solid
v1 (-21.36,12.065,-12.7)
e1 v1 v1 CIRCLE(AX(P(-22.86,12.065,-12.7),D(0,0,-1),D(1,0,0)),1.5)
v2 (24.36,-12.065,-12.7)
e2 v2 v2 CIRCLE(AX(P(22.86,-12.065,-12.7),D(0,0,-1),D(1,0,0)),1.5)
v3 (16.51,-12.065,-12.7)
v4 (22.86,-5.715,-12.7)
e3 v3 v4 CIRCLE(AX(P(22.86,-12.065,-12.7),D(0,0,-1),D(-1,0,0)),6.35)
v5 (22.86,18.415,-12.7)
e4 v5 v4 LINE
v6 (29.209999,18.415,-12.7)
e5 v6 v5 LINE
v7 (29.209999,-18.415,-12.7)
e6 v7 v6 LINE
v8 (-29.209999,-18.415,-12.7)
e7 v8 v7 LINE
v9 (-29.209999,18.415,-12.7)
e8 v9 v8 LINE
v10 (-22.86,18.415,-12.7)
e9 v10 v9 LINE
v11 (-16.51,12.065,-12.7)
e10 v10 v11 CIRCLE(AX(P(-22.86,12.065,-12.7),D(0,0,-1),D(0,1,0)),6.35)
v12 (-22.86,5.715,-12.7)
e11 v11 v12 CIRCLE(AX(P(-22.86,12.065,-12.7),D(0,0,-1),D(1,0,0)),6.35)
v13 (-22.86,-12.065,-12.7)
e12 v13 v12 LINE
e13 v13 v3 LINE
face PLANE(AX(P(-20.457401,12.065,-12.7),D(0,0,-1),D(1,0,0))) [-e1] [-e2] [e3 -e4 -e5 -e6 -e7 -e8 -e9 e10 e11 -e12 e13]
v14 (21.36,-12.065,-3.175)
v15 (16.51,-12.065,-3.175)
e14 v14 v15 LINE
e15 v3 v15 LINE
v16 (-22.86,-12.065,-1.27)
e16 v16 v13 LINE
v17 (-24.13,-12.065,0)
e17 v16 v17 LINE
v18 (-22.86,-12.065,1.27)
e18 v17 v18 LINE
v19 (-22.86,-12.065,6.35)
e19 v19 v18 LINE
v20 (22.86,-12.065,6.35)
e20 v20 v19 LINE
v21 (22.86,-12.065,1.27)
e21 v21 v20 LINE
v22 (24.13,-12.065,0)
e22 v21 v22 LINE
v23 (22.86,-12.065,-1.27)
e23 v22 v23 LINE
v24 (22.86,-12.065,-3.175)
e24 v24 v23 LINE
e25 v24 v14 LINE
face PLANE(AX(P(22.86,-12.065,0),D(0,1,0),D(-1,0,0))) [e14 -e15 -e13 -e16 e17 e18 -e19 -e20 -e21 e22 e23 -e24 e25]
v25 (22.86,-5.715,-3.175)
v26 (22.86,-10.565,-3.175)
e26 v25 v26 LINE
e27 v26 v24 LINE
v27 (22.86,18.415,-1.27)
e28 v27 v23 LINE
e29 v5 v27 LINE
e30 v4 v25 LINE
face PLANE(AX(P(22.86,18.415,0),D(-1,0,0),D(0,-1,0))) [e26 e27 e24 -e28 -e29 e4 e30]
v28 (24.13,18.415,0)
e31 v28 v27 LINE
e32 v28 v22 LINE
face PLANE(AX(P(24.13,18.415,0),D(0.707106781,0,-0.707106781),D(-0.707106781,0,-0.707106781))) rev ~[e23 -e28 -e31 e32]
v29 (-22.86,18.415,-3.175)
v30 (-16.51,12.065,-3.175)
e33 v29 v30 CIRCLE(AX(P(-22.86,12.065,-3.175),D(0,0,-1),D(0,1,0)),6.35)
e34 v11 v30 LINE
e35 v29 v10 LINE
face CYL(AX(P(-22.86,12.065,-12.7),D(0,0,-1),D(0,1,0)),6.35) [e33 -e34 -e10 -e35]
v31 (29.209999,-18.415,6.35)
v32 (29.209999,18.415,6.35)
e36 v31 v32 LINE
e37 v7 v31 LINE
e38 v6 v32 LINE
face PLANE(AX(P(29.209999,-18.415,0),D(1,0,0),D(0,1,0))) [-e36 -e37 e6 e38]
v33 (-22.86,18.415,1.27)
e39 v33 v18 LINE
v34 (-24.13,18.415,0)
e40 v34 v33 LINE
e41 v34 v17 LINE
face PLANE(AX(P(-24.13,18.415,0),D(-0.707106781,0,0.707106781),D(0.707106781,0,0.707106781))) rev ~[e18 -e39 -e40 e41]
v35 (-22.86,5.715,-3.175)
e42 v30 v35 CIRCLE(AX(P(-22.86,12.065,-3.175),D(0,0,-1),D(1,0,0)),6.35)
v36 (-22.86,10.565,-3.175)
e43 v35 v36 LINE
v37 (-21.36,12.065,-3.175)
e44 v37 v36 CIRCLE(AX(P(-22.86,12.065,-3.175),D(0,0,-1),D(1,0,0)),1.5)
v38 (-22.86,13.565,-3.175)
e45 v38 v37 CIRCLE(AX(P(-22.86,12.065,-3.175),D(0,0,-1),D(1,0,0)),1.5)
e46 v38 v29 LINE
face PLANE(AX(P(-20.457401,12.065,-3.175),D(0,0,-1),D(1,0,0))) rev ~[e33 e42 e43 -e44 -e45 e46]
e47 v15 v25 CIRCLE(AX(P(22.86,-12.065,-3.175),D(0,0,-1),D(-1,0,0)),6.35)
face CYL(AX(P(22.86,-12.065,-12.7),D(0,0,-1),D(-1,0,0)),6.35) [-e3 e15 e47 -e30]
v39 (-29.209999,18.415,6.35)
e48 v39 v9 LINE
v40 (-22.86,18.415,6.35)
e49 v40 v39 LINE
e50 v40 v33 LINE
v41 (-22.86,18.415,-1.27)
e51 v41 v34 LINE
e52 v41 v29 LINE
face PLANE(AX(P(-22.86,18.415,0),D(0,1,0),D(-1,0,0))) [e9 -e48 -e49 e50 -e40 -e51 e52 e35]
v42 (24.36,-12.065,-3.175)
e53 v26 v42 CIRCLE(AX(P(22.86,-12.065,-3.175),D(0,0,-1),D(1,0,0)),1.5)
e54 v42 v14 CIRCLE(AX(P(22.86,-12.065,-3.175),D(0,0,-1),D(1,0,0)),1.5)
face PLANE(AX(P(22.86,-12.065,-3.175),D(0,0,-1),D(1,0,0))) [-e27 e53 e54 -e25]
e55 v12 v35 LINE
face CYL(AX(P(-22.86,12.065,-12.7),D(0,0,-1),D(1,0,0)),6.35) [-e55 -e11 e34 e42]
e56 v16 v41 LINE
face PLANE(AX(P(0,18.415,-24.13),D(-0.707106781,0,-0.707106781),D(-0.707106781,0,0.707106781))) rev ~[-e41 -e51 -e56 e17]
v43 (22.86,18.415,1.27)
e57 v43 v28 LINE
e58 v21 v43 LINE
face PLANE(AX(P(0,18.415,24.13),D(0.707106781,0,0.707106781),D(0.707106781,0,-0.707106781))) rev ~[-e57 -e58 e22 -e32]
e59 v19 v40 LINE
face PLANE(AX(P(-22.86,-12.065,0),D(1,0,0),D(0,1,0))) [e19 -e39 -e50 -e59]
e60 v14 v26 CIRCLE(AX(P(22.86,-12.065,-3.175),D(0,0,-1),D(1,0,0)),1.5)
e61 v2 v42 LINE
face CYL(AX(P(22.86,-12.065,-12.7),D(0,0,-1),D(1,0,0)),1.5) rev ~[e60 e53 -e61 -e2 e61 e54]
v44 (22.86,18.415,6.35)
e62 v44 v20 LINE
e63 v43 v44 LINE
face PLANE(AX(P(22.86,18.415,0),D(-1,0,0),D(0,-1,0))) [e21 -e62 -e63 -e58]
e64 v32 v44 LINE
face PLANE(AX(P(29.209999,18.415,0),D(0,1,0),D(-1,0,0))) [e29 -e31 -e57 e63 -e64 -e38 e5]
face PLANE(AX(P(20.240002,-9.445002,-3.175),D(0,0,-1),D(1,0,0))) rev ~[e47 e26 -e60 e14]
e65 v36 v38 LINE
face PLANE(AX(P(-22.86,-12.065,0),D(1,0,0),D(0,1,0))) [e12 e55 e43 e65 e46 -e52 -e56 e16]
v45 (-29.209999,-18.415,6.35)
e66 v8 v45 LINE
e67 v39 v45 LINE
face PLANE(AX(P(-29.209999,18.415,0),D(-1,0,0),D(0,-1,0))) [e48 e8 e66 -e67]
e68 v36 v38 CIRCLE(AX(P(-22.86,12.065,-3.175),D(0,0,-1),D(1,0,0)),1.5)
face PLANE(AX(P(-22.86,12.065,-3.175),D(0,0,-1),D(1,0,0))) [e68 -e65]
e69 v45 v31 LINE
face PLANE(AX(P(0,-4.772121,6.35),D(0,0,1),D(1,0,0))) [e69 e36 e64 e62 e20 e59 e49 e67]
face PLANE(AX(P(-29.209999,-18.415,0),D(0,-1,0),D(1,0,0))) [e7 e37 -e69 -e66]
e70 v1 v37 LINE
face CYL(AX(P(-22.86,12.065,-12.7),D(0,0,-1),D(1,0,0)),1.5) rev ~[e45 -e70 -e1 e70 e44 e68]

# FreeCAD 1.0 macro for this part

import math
import FreeCAD as App
import Part
import Sketcher

V = App.Vector
Q = App.Units.Quantity

doc = App.newDocument("Part")
params = doc.addObject("Spreadsheet::Sheet", "Params")
for row, (alias, value) in enumerate([
    ("sketch1_width", "2.3 in"),
    ("sketch1_width2", "1.8 in"),
    ("sketch1_height", "1.2 in"),
    ("sketch1_height2", "1.45 in"),
    ("pad1_length", "0.25 in"),
    ("pad1_length2", "0.5 in"),
    ("pocket1_length", "1.2 in"),
    ("sketch3_radius", "0.25 in"),
    ("pad2_length", "0.375 in"),
    ("pocket2_length", "0.375 in"),
], start=1):
    params.set(f"A{row}", alias)
    params.set(f"B{row}", "=" + value)
    params.setAlias(f"B{row}", alias)

body = doc.addObject("PartDesign::Body", "Body")

# Sketch on XY plane
sketch1 = doc.addObject("Sketcher::SketchObject", "Sketch")
body.addObject(sketch1)
sketch1.AttachmentSupport = (doc.XY_Plane, [""])
sketch1.MapMode = "FlatFace"
sketch1.addGeometry([
    Part.LineSegment(V(-29, 18, 0), V(-29, -18, 0)),  # 0
    Part.LineSegment(V(-29, -18, 0), V(29, -18, 0)),  # 1
    Part.LineSegment(V(29, -18, 0), V(29, 18, 0)),  # 2
    Part.LineSegment(V(29, 18, 0), V(23, 18, 0)),  # 3
    Part.LineSegment(V(23, 18, 0), V(23, -12, 0)),  # 4
    Part.LineSegment(V(23, -12, 0), V(-23, -12, 0)),  # 5
    Part.LineSegment(V(-23, -12, 0), V(-23, 18, 0)),  # 6
    Part.LineSegment(V(-23, 18, 0), V(-29, 18, 0)),  # 7
], False)
sketch1.addConstraint([
    Sketcher.Constraint("Coincident", 0, 2, 1, 1),
    Sketcher.Constraint("Coincident", 1, 2, 2, 1),
    Sketcher.Constraint("Coincident", 2, 2, 3, 1),
    Sketcher.Constraint("Coincident", 3, 2, 4, 1),
    Sketcher.Constraint("Coincident", 4, 2, 5, 1),
    Sketcher.Constraint("Coincident", 5, 2, 6, 1),
    Sketcher.Constraint("Coincident", 6, 2, 7, 1),
    Sketcher.Constraint("Coincident", 7, 2, 0, 1),
    Sketcher.Constraint("Vertical", 0),
    Sketcher.Constraint("Horizontal", 1),
    Sketcher.Constraint("Vertical", 2),
    Sketcher.Constraint("Horizontal", 3),
    Sketcher.Constraint("Vertical", 4),
    Sketcher.Constraint("Horizontal", 5),
    Sketcher.Constraint("Vertical", 6),
    Sketcher.Constraint("Horizontal", 7),
    Sketcher.Constraint("Symmetric", 0, 2, 2, 2, -1, 1),
    Sketcher.Constraint("Symmetric", 3, 2, 6, 2, -2),
    Sketcher.Constraint("DistanceX", 1, 1, 1, 2, Q("2.3 in")),
    Sketcher.Constraint("DistanceX", 5, 2, 5, 1, Q("1.8 in")),
    Sketcher.Constraint("DistanceY", 4, 2, 4, 1, Q("1.2 in")),
    Sketcher.Constraint("DistanceY", 0, 2, 0, 1, Q("1.45 in")),
])
sketch1.setExpression("Constraints[18]", "Params.sketch1_width")
sketch1.setExpression("Constraints[19]", "Params.sketch1_width2")
sketch1.setExpression("Constraints[20]", "Params.sketch1_height")
sketch1.setExpression("Constraints[21]", "Params.sketch1_height2")
pad1 = doc.addObject("PartDesign::Pad", "Pad")
body.addObject(pad1)
pad1.Profile = sketch1
pad1.Type = "TwoLengths"
pad1.setExpression("Length", "Params.pad1_length")
pad1.setExpression("Length2", "Params.pad1_length2")

# Sketch on XZ plane
sketch2 = doc.addObject("Sketcher::SketchObject", "Sketch001")
body.addObject(sketch2)
sketch2.AttachmentSupport = (doc.XZ_Plane, [""])
sketch2.MapMode = "FlatFace"
sketch2.AttachmentOffset = App.Placement(V(0, 0, -0.725 * 25.4), App.Rotation())
sketch2.addGeometry([
    Part.LineSegment(V(0, 24, 0), V(24, 0, 0)),
    Part.LineSegment(V(24, 0, 0), V(0, -24, 0)),
    Part.LineSegment(V(0, -24, 0), V(-24, 0, 0)),
    Part.LineSegment(V(-24, 0, 0), V(0, 24, 0)),
], False)
sketch2.addConstraint([
    Sketcher.Constraint("Coincident", 0, 2, 1, 1),
    Sketcher.Constraint("Coincident", 1, 2, 2, 1),
    Sketcher.Constraint("Coincident", 2, 2, 3, 1),
    Sketcher.Constraint("Coincident", 3, 2, 0, 1),
    Sketcher.Constraint("Symmetric", 0, 2, 2, 2, -1, 1),
    Sketcher.Constraint("Symmetric", 1, 2, 3, 2, -1, 1),
    Sketcher.Constraint("PointOnObject", 0, 2, -1),
    Sketcher.Constraint("PointOnObject", 1, 2, -2),
    Sketcher.Constraint("Perpendicular", 0, 1),
    Sketcher.Constraint("DistanceX", 2, 2, 0, 2, Q("1.9 in")),
])
pocket1 = doc.addObject("PartDesign::Pocket", "Pocket")
body.addObject(pocket1)
pocket1.Profile = sketch2
pocket1.setExpression("Length", "Params.pocket1_length")
pocket1.Reversed = True

# Sketch on XY plane
sketch3 = doc.addObject("Sketcher::SketchObject", "Sketch002")
body.addObject(sketch3)
sketch3.AttachmentSupport = (doc.XY_Plane, [""])
sketch3.MapMode = "FlatFace"
sketch3.AttachmentOffset = App.Placement(V(0, 0, -0.5 * 25.4), App.Rotation())
sketch3.addGeometry([
    Part.LineSegment(V(-23, 6, 0), V(-23, 18, 0)),  # 0
    Part.ArcOfCircle(Part.Circle(V(-23, 12, 0), V(0, 0, 1), 6), math.radians(0), math.radians(90)),  # 1
    Part.ArcOfCircle(Part.Circle(V(-23, 12, 0), V(0, 0, 1), 6), math.radians(-90), math.radians(0)),  # 2
    Part.LineSegment(V(23, -12, 0), V(17, -12, 0)),  # 3
    Part.ArcOfCircle(Part.Circle(V(23, -12, 0), V(0, 0, 1), 6), math.radians(90), math.radians(180)),  # 4
    Part.LineSegment(V(23, -6, 0), V(23, -12, 0)),  # 5
], False)
sketch3.addConstraint([
    Sketcher.Constraint("Coincident", 0, 2, 1, 2),
    Sketcher.Constraint("Tangent", 1, 1, 2, 2),
    Sketcher.Constraint("Coincident", 2, 1, 0, 1),
    Sketcher.Constraint("Coincident", 3, 2, 4, 2),
    Sketcher.Constraint("Coincident", 4, 1, 5, 1),
    Sketcher.Constraint("Coincident", 5, 2, 3, 1),
    Sketcher.Constraint("Vertical", 0),
    Sketcher.Constraint("Horizontal", 3),
    Sketcher.Constraint("Vertical", 5),
    Sketcher.Constraint("Coincident", 5, 2, 4, 3),
    Sketcher.Constraint("Equal", 1, 2),
    Sketcher.Constraint("Equal", 2, 4),
    Sketcher.Constraint("Symmetric", 1, 3, 4, 3, -1, 1),
    Sketcher.Constraint("Horizontal", 2, 3, 1, 1),
    Sketcher.Constraint("Vertical", 2, 3, 0, 2),
    Sketcher.Constraint("Radius", 1, Q("0.25 in")),
    Sketcher.Constraint("DistanceX", 1, 3, -1, 1, Q("0.9 in")),
    Sketcher.Constraint("DistanceY", 4, 3, 0, 2, Q("1.2 in")),
])
sketch3.setExpression("Constraints[15]", "Params.sketch3_radius")
pad2 = doc.addObject("PartDesign::Pad", "Pad001")
body.addObject(pad2)
pad2.Profile = sketch3
pad2.setExpression("Length", "Params.pad2_length")

# Sketch on XY plane
sketch4 = doc.addObject("Sketcher::SketchObject", "Sketch003")
body.addObject(sketch4)
sketch4.AttachmentSupport = (doc.XY_Plane, [""])
sketch4.MapMode = "FlatFace"
sketch4.AttachmentOffset = App.Placement(V(0, 0, -0.5 * 25.4), App.Rotation())
sketch4.addGeometry([
    Part.Circle(V(22.9, -12.1, 0), V(0, 0, 1), 1.5),
    Part.Circle(V(-22.9, 12.1, 0), V(0, 0, 1), 1.5),
], False)
sketch4.addConstraint([
    Sketcher.Constraint("Equal", 0, 1),
    Sketcher.Constraint("Symmetric", 0, 3, 1, 3, -1, 1),
    Sketcher.Constraint("DistanceX", -1, 1, 0, 3, Q("0.9 in")),
    Sketcher.Constraint("Diameter", 0, Q("3 mm")),
    Sketcher.Constraint("DistanceY", 0, 3, 1, 3, Q("0.95 in")),
])
pocket2 = doc.addObject("PartDesign::Pocket", "Pocket001")
body.addObject(pocket2)
pocket2.Profile = sketch4
pocket2.setExpression("Length", "Params.pocket2_length")
pocket2.Reversed = True

doc.recompute()
